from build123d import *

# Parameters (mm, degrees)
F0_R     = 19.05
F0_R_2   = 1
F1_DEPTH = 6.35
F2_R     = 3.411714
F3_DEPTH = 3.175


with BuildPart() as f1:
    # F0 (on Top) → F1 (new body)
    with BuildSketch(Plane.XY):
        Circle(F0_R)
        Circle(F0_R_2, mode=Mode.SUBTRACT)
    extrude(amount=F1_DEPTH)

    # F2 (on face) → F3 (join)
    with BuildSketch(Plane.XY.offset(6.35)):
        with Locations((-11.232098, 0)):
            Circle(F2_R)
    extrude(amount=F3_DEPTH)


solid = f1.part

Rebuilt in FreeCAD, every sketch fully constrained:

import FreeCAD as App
import Part
import Sketcher

V = App.Vector
Q = App.Units.Quantity

doc = App.newDocument("Part")
body = doc.addObject("PartDesign::Body", "Body")

sketch1 = body.newObject("Sketcher::SketchObject", "Sketch")
sketch1.AttachmentSupport = (doc.getObject("XY_Plane"), [""])
sketch1.MapMode = "FlatFace"
sketch1.addGeometry(Part.Circle(V(0, 0, 0), V(0, 0, 1), 19.05), False)
sketch1.addGeometry(Part.Circle(V(0, 0, 0), V(0, 0, 1), 1), False)
sketch1.addConstraint(Sketcher.Constraint("Coincident", 0, 3, -1, 1))
sketch1.addConstraint(Sketcher.Constraint("Coincident", 1, 3, -1, 1))
sketch1.addConstraint(Sketcher.Constraint("Diameter", 0, Q("1.5 in")))
sketch1.addConstraint(Sketcher.Constraint("Diameter", 1, Q("2 mm")))
pad1 = body.newObject("PartDesign::Pad", "Pad")
pad1.Profile = sketch1
pad1.Length = Q("0.25 in")

sketch2 = body.newObject("Sketcher::SketchObject", "Sketch001")
sketch2.AttachmentSupport = (doc.getObject("XY_Plane"), [""])
sketch2.MapMode = "FlatFace"
sketch2.AttachmentOffset = App.Placement(V(0, 0, 0.25 * 25.4), App.Rotation())
sketch2.addGeometry(Part.Circle(V(-11.232098, 0, 0), V(0, 0, 1), 3.411714), False)
sketch2.addConstraint(Sketcher.Constraint("PointOnObject", 0, 3, -1))
sketch2.addConstraint(Sketcher.Constraint("Diameter", 0, Q("6.823428 mm")))
sketch2.addConstraint(Sketcher.Constraint("DistanceX", 0, 3, -1, 1, Q("11.232098 mm")))
pad2 = body.newObject("PartDesign::Pad", "Pad001")
pad2.Profile = sketch2
pad2.Length = Q("0.125 in")

doc.recompute()
